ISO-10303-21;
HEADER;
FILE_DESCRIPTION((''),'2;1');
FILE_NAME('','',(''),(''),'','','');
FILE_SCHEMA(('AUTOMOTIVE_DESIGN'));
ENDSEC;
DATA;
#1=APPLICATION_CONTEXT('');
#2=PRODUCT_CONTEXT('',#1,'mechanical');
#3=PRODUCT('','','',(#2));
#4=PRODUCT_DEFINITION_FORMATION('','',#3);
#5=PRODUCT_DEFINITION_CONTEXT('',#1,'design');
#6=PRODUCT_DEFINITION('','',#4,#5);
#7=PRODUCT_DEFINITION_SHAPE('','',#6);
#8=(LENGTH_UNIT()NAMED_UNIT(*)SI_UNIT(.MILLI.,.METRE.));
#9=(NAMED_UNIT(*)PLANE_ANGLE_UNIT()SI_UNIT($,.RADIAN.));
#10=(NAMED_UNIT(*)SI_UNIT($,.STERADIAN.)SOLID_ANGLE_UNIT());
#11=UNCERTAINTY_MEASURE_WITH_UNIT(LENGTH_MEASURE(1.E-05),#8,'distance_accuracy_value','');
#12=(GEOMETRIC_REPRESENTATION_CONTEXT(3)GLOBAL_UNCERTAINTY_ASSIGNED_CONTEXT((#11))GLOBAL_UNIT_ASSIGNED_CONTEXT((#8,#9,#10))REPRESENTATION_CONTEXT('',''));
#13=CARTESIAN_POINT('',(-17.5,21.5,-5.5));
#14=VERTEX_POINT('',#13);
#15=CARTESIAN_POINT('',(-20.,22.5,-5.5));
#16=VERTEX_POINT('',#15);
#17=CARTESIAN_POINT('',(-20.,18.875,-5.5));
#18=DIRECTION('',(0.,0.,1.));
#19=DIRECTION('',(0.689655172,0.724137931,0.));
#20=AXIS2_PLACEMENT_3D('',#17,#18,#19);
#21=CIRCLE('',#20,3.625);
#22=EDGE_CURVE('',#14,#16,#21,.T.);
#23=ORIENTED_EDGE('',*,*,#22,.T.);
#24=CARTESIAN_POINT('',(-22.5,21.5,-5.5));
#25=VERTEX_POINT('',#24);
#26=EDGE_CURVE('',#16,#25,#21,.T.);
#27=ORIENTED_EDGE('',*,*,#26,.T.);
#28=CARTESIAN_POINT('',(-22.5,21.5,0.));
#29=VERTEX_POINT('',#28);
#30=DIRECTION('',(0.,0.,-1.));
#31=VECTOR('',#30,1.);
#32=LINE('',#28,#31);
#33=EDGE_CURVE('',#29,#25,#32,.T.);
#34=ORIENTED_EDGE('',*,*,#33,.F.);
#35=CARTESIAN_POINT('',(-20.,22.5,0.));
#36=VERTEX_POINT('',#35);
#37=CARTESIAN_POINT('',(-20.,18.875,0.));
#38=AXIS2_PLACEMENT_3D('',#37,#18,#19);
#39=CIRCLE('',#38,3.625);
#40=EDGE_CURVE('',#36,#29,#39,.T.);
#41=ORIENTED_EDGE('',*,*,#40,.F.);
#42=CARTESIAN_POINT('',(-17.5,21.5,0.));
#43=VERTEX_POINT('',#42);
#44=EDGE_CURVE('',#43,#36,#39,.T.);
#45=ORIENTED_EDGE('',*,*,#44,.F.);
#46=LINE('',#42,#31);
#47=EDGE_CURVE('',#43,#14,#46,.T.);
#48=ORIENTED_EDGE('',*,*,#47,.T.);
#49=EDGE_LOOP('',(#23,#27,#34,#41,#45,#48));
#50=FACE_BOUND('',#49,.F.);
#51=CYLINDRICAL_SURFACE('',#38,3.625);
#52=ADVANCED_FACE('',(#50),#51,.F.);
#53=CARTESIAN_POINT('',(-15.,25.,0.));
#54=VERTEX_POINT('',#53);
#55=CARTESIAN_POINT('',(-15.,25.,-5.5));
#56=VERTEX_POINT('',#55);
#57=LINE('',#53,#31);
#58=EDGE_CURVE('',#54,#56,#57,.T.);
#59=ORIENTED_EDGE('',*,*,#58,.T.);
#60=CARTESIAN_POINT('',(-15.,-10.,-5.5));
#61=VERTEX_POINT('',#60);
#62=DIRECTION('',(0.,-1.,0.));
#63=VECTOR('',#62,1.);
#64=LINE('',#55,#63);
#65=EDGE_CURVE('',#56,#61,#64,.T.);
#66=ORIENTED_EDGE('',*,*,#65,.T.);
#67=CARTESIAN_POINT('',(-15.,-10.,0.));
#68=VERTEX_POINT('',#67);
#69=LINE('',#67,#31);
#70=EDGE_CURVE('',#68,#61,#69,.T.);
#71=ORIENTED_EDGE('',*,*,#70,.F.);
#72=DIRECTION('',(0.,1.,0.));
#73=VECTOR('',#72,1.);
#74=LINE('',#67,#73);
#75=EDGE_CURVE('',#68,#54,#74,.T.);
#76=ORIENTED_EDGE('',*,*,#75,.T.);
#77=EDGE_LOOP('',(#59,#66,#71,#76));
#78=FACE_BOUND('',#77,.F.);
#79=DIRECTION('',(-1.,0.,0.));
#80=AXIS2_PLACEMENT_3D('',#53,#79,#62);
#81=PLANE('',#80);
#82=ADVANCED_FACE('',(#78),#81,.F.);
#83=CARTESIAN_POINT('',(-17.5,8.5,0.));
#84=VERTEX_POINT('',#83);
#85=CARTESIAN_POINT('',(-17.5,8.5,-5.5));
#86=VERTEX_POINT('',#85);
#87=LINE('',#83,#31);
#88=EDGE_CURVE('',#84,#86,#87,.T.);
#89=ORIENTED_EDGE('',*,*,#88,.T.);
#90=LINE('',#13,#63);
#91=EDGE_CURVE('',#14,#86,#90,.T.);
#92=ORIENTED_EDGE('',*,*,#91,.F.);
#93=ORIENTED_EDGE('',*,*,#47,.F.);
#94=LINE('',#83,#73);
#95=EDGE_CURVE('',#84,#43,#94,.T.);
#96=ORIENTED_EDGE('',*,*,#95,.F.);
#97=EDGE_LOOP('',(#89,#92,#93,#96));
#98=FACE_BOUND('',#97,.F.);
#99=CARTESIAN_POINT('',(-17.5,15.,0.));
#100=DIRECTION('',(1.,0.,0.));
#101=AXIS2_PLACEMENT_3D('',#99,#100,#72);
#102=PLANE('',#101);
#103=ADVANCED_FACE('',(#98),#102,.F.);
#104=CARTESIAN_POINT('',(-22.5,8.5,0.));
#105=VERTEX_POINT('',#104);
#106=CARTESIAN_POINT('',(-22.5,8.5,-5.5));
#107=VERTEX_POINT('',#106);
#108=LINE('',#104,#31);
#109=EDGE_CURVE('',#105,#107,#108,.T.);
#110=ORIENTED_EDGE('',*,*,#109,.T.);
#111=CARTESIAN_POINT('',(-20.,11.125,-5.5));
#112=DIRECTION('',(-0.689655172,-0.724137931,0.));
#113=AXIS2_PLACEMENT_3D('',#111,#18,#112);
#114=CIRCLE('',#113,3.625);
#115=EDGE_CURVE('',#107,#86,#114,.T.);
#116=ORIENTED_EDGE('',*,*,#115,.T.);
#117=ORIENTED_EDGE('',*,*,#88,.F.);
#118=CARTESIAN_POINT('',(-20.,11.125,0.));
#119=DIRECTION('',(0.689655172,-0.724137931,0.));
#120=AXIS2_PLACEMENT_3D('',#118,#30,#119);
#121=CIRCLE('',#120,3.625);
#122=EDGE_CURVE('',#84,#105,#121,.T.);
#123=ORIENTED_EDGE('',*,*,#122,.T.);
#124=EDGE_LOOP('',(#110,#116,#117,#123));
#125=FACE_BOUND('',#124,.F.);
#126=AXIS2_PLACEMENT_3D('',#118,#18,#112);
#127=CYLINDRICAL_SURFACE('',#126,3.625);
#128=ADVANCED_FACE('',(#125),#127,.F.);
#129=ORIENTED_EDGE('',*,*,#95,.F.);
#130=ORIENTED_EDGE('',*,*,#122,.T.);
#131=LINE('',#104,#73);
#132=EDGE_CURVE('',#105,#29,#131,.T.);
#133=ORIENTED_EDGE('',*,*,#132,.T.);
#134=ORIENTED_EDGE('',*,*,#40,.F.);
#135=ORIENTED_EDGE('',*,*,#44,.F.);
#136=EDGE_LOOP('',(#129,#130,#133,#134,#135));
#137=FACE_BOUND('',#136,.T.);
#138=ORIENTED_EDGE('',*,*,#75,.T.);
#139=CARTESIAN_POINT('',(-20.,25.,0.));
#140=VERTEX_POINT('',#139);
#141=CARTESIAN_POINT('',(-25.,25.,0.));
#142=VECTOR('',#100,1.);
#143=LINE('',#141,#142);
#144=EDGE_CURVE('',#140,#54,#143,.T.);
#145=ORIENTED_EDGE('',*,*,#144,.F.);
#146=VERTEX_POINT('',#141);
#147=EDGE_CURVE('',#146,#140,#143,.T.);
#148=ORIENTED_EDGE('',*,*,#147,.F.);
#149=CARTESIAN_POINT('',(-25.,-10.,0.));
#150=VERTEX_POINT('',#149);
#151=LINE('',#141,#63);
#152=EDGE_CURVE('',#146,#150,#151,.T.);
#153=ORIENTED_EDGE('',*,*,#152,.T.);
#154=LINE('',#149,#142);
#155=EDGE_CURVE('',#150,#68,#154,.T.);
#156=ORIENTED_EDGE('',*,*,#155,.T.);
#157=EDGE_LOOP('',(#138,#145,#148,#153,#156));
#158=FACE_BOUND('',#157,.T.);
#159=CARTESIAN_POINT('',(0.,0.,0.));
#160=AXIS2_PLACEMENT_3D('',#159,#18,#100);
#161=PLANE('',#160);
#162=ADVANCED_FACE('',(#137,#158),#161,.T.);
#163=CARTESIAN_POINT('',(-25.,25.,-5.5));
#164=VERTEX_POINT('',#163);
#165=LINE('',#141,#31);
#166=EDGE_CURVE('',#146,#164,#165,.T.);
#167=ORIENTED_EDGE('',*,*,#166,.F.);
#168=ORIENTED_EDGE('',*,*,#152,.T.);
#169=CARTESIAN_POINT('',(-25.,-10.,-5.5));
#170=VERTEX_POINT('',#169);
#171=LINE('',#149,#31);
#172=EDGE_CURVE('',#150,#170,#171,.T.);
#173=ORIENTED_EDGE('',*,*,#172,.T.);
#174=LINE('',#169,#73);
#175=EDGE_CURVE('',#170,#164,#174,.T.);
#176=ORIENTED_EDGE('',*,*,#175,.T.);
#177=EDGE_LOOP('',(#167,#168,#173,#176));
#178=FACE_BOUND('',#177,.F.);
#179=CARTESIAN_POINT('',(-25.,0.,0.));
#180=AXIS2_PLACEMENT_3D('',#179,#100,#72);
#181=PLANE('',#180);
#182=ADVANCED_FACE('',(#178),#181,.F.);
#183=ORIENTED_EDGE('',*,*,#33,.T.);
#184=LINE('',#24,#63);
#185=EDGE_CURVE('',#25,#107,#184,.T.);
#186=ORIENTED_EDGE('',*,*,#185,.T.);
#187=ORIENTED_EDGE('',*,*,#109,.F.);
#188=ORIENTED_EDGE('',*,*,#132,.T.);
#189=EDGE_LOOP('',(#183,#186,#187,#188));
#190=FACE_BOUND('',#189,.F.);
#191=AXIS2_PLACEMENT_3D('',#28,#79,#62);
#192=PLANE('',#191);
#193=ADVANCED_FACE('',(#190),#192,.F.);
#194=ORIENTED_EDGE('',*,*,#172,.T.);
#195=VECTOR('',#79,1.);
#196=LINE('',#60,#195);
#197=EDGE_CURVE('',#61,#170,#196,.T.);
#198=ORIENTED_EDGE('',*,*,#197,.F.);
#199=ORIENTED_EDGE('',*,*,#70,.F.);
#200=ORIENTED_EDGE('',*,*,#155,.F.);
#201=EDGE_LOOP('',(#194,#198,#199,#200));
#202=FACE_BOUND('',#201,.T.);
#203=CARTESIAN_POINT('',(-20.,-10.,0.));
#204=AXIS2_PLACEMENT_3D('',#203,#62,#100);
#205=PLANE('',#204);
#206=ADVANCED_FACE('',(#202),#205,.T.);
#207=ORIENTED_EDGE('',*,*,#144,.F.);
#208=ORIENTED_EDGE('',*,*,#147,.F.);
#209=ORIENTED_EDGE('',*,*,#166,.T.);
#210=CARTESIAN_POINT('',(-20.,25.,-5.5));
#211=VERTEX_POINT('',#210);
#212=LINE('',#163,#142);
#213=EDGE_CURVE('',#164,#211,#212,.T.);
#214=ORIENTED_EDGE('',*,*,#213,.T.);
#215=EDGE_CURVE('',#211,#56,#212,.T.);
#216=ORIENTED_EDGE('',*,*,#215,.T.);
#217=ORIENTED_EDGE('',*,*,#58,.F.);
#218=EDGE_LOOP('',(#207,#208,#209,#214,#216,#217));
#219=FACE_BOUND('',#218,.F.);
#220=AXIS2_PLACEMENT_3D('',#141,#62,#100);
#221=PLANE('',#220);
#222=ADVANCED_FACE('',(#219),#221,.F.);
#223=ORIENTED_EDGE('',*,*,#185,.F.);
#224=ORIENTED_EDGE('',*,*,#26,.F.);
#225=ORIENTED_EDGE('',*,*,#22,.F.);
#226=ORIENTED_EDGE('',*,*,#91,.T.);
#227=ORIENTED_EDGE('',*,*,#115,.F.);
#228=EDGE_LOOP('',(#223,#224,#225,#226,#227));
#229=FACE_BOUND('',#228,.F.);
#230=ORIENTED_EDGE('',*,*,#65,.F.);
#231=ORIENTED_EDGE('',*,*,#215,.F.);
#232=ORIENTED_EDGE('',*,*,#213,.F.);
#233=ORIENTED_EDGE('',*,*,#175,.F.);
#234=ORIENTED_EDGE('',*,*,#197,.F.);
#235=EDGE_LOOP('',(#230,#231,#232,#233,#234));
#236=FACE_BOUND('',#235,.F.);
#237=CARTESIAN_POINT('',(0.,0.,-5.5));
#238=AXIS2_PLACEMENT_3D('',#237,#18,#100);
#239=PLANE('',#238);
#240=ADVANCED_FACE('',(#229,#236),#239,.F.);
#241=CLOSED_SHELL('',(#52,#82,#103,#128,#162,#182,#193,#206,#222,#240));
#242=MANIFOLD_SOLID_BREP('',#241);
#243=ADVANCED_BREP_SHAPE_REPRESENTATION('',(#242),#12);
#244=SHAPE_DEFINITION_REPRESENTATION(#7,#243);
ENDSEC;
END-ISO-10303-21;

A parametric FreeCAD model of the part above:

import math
import FreeCAD as App
import Part
import Sketcher

V = App.Vector
Q = App.Units.Quantity


def add_polygon(sketch, points):
    """Adds a closed chain of lines whose ends are joined by coincident constraints."""
    first, n = sketch.GeometryCount, len(points)
    for a, b in zip(points, points[1:] + points[:1]):
        sketch.addGeometry(Part.LineSegment(App.Vector(*a, 0), App.Vector(*b, 0)), False)
    for i in range(n):
        sketch.addConstraint(Sketcher.Constraint("Coincident", first + i, 2, first + (i + 1) % n, 1))

doc = App.newDocument("Part")
params = doc.addObject("Spreadsheet::Sheet", "Params")
for row, (alias, value) in enumerate([
    ("sketch1_width", "10 mm"),
    ("sketch1_height", "13 mm"),
    ("pad1_length", "5.5 mm"),
], start=1):
    params.set(f"A{row}", alias)
    params.set(f"B{row}", "=" + value)
    params.setAlias(f"B{row}", alias)

body = doc.addObject("PartDesign::Body", "Body")

sketch1 = doc.addObject("Sketcher::SketchObject", "Sketch")
body.addObject(sketch1)
sketch1.AttachmentSupport = (doc.XY_Plane, [""])
sketch1.MapMode = "FlatFace"
add_polygon(sketch1, [(-25, 25), (-25, -10), (-15, -10), (-15, 25), (-20, 25)])
sketch1.addGeometry(Part.ArcOfCircle(Part.Circle(V(-20, 18.9, 0), V(0, 0, 1), 3.6), math.radians(46), math.radians(90)), False)
sketch1.addGeometry(Part.LineSegment(V(-17.5, 21.5, 0), V(-17.5, 8.5, 0)), False)
sketch1.addGeometry(Part.ArcOfCircle(Part.Circle(V(-20, 11.1, 0), V(0, 0, 1), 3.6), math.radians(-134), math.radians(-46)), False)
sketch1.addGeometry(Part.LineSegment(V(-22.5, 8.5, 0), V(-22.5, 21.5, 0)), False)
sketch1.addGeometry(Part.ArcOfCircle(Part.Circle(V(-20, 18.9, 0), V(0, 0, 1), 3.6), math.radians(90), math.radians(134)), False)
sketch1.addConstraint(Sketcher.Constraint("Coincident", 5, 1, 6, 1))
sketch1.addConstraint(Sketcher.Constraint("Coincident", 6, 2, 7, 2))
sketch1.addConstraint(Sketcher.Constraint("Coincident", 7, 1, 8, 1))
sketch1.addConstraint(Sketcher.Constraint("Coincident", 8, 2, 9, 2))
sketch1.addConstraint(Sketcher.Constraint("Tangent", 9, 1, 5, 2))
sketch1.addConstraint(Sketcher.Constraint("Vertical", 0))
sketch1.addConstraint(Sketcher.Constraint("Horizontal", 1))
sketch1.addConstraint(Sketcher.Constraint("Vertical", 2))
sketch1.addConstraint(Sketcher.Constraint("Horizontal", 3))
sketch1.addConstraint(Sketcher.Constraint("Horizontal", 4))
sketch1.addConstraint(Sketcher.Constraint("Vertical", 6))
sketch1.addConstraint(Sketcher.Constraint("Vertical", 8))
sketch1.addConstraint(Sketcher.Constraint("Equal", 5, 7))
sketch1.addConstraint(Sketcher.Constraint("Equal", 7, 9))
sketch1.addConstraint(Sketcher.Constraint("Horizontal", 6, 2, 7, 1))
sketch1.addConstraint(Sketcher.Constraint("Horizontal", 5, 1, 8, 2))
sketch1.addConstraint(Sketcher.Constraint("Vertical", 9, 3, 3, 2))
sketch1.addConstraint(Sketcher.Constraint("Vertical", 3, 2, 9, 1))
sketch1.addConstraint(Sketcher.Constraint("Equal", 3, 4))
sketch1.addConstraint(Sketcher.Constraint("DistanceX", 1, 1, 1, 2, Q("10 mm")))
sketch1.addConstraint(Sketcher.Constraint("DistanceX", 5, 3, -1, 1, Q("20 mm")))
sketch1.addConstraint(Sketcher.Constraint("DistanceY", 0, 2, -1, 1, Q("10 mm")))
sketch1.addConstraint(Sketcher.Constraint("DistanceY", -1, 1, 2, 2, Q("25 mm")))
sketch1.addConstraint(Sketcher.Constraint("DistanceX", 7, 1, 6, 2, Q("5 mm")))
sketch1.addConstraint(Sketcher.Constraint("DistanceY", 5, 1, 9, 1, Q("1 mm")))
sketch1.addConstraint(Sketcher.Constraint("DistanceY", 6, 2, 6, 1, Q("13 mm")))
sketch1.addConstraint(Sketcher.Constraint("DistanceY", -1, 1, 5, 1, Q("21.5 mm")))
sketch1.setExpression("Constraints[24]", "Params.sketch1_width")
sketch1.setExpression("Constraints[30]", "Params.sketch1_height")
pad1 = doc.addObject("PartDesign::Pad", "Pad")
body.addObject(pad1)
pad1.Profile = sketch1
pad1.setExpression("Length", "Params.pad1_length")
pad1.Reversed = True

doc.recompute()
